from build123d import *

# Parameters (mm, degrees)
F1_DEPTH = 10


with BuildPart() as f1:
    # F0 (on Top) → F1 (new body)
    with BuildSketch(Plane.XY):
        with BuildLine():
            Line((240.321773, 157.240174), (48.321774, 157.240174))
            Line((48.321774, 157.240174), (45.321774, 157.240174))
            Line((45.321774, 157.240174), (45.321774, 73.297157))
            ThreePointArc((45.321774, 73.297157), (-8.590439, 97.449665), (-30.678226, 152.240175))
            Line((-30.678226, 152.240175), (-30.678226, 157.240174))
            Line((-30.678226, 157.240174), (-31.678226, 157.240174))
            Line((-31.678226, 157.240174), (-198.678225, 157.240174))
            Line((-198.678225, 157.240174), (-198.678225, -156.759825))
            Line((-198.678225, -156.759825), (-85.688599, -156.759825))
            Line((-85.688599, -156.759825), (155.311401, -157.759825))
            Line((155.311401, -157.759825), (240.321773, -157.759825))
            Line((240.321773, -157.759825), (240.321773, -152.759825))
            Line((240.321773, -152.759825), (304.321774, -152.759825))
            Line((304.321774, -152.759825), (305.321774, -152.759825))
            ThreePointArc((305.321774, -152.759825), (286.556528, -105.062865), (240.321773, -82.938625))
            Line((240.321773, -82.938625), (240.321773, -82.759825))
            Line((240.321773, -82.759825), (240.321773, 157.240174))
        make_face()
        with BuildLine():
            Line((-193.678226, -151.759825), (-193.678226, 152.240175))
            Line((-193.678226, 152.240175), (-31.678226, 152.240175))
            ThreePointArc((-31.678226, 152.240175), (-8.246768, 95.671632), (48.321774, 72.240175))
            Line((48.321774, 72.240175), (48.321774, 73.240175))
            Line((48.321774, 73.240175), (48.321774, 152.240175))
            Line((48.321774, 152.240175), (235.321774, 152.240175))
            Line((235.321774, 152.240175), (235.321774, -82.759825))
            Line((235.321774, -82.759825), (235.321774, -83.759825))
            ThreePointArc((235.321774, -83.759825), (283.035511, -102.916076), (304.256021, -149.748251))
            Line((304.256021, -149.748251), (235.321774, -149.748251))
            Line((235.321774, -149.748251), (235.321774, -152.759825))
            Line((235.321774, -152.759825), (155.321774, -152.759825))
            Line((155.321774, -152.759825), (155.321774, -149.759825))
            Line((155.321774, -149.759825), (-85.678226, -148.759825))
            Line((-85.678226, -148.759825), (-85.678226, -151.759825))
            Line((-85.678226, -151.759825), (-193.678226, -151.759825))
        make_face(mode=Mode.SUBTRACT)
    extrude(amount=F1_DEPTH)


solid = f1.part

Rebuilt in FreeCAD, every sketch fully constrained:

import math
import FreeCAD as App
import Part
import Sketcher
from FreeCAD import Vector
Q = App.Units.Quantity

doc = App.newDocument("Part")
body = doc.addObject("PartDesign::Body", "Body")

# Sketch on XY plane
sketch1 = body.newObject("Sketcher::SketchObject", "Sketch")
sketch1.AttachmentSupport = (doc.getObject("XY_Plane"), [""])
sketch1.MapMode = "FlatFace"
sketch1.addGeometry([
    Part.LineSegment(Vector(240.321773, 157.240174, 0), Vector(45.321774, 157.240174, 0)),  # 0
    Part.LineSegment(Vector(45.321774, 157.240174, 0), Vector(45.321774, 73.297157, 0)),  # 1
    Part.ArcOfCircle(Part.Circle(Vector(48.321775, 152.240176, 0), Vector(0, 0, 1), 79.000001), math.radians(-179.999999), math.radians(-92.176313)),  # 2
    Part.LineSegment(Vector(-30.678226, 152.240175, 0), Vector(-30.678226, 157.240174, 0)),  # 3
    Part.LineSegment(Vector(-30.678226, 157.240174, 0), Vector(-198.678225, 157.240174, 0)),  # 4
    Part.LineSegment(Vector(-198.678225, 157.240174, 0), Vector(-198.678225, -156.759825, 0)),  # 5
    Part.LineSegment(Vector(-198.678225, -156.759825, 0), Vector(-85.688599, -156.759825, 0)),  # 6
    Part.LineSegment(Vector(-85.688599, -156.759825, 0), Vector(155.311401, -157.759825, 0)),  # 7
    Part.LineSegment(Vector(155.311401, -157.759825, 0), Vector(240.321773, -157.759825, 0)),  # 8
    Part.LineSegment(Vector(240.321773, -157.759825, 0), Vector(240.321773, -152.759825, 0)),  # 9
    Part.LineSegment(Vector(240.321773, -152.759825, 0), Vector(305.321774, -152.759825, 0)),  # 10
    Part.ArcOfCircle(Part.Circle(Vector(235.321775, -152.759825, 0), Vector(0, 0, 1), 69.999999), math.radians(0), math.radians(85.903958)),  # 11
    Part.LineSegment(Vector(240.321773, -82.938625, 0), Vector(240.321773, 157.240174, 0)),  # 12
    Part.LineSegment(Vector(-85.678226, -151.759825, 0), Vector(-193.678226, -151.759825, 0)),  # 13
    Part.LineSegment(Vector(-193.678226, -151.759825, 0), Vector(-193.678226, 152.240175, 0)),  # 14
    Part.LineSegment(Vector(-193.678226, 152.240175, 0), Vector(-31.678226, 152.240175, 0)),  # 15
    Part.ArcOfCircle(Part.Circle(Vector(48.321774, 152.240175, 0), Vector(0, 0, 1), 80), math.radians(180), math.radians(270)),  # 16
    Part.LineSegment(Vector(48.321774, 72.240175, 0), Vector(48.321774, 152.240175, 0)),  # 17
    Part.LineSegment(Vector(48.321774, 152.240175, 0), Vector(235.321774, 152.240175, 0)),  # 18
    Part.LineSegment(Vector(235.321774, 152.240175, 0), Vector(235.321774, -83.759825, 0)),  # 19
    Part.ArcOfCircle(Part.Circle(Vector(235.321774, -152.759825, 0), Vector(0, 0, 1), 69), math.radians(2.501526), math.radians(90)),  # 20
    Part.LineSegment(Vector(304.256021, -149.748251, 0), Vector(235.321774, -149.748251, 0)),  # 21
    Part.LineSegment(Vector(235.321774, -149.748251, 0), Vector(235.321774, -152.759825, 0)),  # 22
    Part.LineSegment(Vector(235.321774, -152.759825, 0), Vector(155.321774, -152.759825, 0)),  # 23
    Part.LineSegment(Vector(155.321774, -152.759825, 0), Vector(155.321774, -149.759825, 0)),  # 24
    Part.LineSegment(Vector(155.321774, -149.759825, 0), Vector(-85.678226, -148.759825, 0)),  # 25
    Part.LineSegment(Vector(-85.678226, -148.759825, 0), Vector(-85.678226, -151.759825, 0)),  # 26
], False)
sketch1.addConstraint([
    Sketcher.Constraint("Coincident", 0, 2, 1, 1),
    Sketcher.Constraint("Coincident", 1, 2, 2, 2),
    Sketcher.Constraint("Tangent", 2, 1, 3, 1),
    Sketcher.Constraint("Coincident", 3, 2, 4, 1),
    Sketcher.Constraint("Coincident", 4, 2, 5, 1),
    Sketcher.Constraint("Coincident", 5, 2, 6, 1),
    Sketcher.Constraint("Coincident", 6, 2, 7, 1),
    Sketcher.Constraint("Coincident", 7, 2, 8, 1),
    Sketcher.Constraint("Coincident", 8, 2, 9, 1),
    Sketcher.Constraint("Coincident", 9, 2, 10, 1),
    Sketcher.Constraint("Coincident", 10, 2, 11, 1),
    Sketcher.Constraint("Coincident", 11, 2, 12, 1),
    Sketcher.Constraint("Coincident", 12, 2, 0, 1),
    Sketcher.Constraint("Coincident", 13, 2, 14, 1),
    Sketcher.Constraint("Coincident", 14, 2, 15, 1),
    Sketcher.Constraint("Coincident", 15, 2, 16, 1),
    Sketcher.Constraint("Coincident", 16, 2, 17, 1),
    Sketcher.Constraint("Coincident", 17, 2, 18, 1),
    Sketcher.Constraint("Coincident", 18, 2, 19, 1),
    Sketcher.Constraint("Coincident", 19, 2, 20, 2),
    Sketcher.Constraint("Coincident", 20, 1, 21, 1),
    Sketcher.Constraint("Coincident", 21, 2, 22, 1),
    Sketcher.Constraint("Coincident", 22, 2, 23, 1),
    Sketcher.Constraint("Coincident", 23, 2, 24, 1),
    Sketcher.Constraint("Coincident", 24, 2, 25, 1),
    Sketcher.Constraint("Coincident", 25, 2, 26, 1),
    Sketcher.Constraint("Coincident", 26, 2, 13, 1),
    Sketcher.Constraint("Horizontal", 0),
    Sketcher.Constraint("Vertical", 1),
    Sketcher.Constraint("Vertical", 3),
    Sketcher.Constraint("Horizontal", 4),
    Sketcher.Constraint("Vertical", 5),
    Sketcher.Constraint("Horizontal", 6),
    Sketcher.Constraint("Horizontal", 8),
    Sketcher.Constraint("Vertical", 9),
    Sketcher.Constraint("Horizontal", 10),
    Sketcher.Constraint("Vertical", 12),
    Sketcher.Constraint("Horizontal", 13),
    Sketcher.Constraint("Vertical", 14),
    Sketcher.Constraint("Horizontal", 15),
    Sketcher.Constraint("Vertical", 17),
    Sketcher.Constraint("Horizontal", 18),
    Sketcher.Constraint("Vertical", 19),
    Sketcher.Constraint("Horizontal", 21),
    Sketcher.Constraint("Vertical", 22),
    Sketcher.Constraint("Horizontal", 23),
    Sketcher.Constraint("Vertical", 24),
    Sketcher.Constraint("Vertical", 26),
    Sketcher.Constraint("Coincident", 16, 3, 2, 3),
    Sketcher.Constraint("Coincident", 20, 3, 11, 3),
    Sketcher.Constraint("Coincident", 17, 2, 2, 3),
    Sketcher.Constraint("Coincident", 22, 2, 11, 3),
    Sketcher.Constraint("Parallel", 7, 25),
    Sketcher.Constraint("Horizontal", 0, 2, 3, 2),
    Sketcher.Constraint("Horizontal", 20, 3, 9, 2),
    Sketcher.Constraint("Horizontal", 2, 1, 14, 2),
    Sketcher.Constraint("Vertical", 9, 2, 11, 2),
    Sketcher.Constraint("Vertical", 20, 3, 18, 2),
    Sketcher.Constraint("Equal", 3, 9),
    Sketcher.Constraint("Equal", 23, 17),
    Sketcher.Constraint("Equal", 24, 26),
    Sketcher.Constraint("Equal", 7, 25),
    Sketcher.Constraint("Radius", 2, Q("79.000001 mm")),
    Sketcher.Constraint("Radius", 11, Q("69.999999 mm")),
    Sketcher.Constraint("Radius", 16, Q("80 mm")),
    Sketcher.Constraint("Radius", 20, Q("69 mm")),
    Sketcher.Constraint("DistanceX", 0, 2, 0, 1, Q("194.999999 mm")),
    Sketcher.Constraint("DistanceX", 4, 2, 4, 1, Q("167.999999 mm")),
    Sketcher.Constraint("DistanceX", 10, 1, 10, 2, Q("65.000001 mm")),
    Sketcher.Constraint("DistanceX", 13, 2, 13, 1, Q("108 mm")),
    Sketcher.Constraint("DistanceX", 15, 1, 15, 2, Q("162 mm")),
    Sketcher.Constraint("DistanceX", 18, 1, 18, 2, Q("187 mm")),
    Sketcher.Constraint("DistanceY", 3, 1, 3, 2, Q("4.999999 mm")),
    Sketcher.Constraint("DistanceY", 5, 2, 5, 1, Q("313.999999 mm")),
    Sketcher.Constraint("DistanceY", 19, 2, 19, 1, Q("236 mm")),
    Sketcher.Constraint("DistanceY", 24, 1, 24, 2, Q("3 mm")),
    Sketcher.Constraint("DistanceX", 6, 2, -1, 1, Q("85.688599 mm")),
    Sketcher.Constraint("DistanceX", 6, 1, 6, 2, Q("112.989626 mm")),
    Sketcher.Constraint("DistanceX", 21, 2, 21, 1, Q("68.934247 mm")),
    Sketcher.Constraint("DistanceY", 20, 1, -1, 1, Q("149.748251 mm")),
])
pad1 = body.newObject("PartDesign::Pad", "Pad")
pad1.Profile = sketch1
pad1.Length = 10

doc.recompute()
